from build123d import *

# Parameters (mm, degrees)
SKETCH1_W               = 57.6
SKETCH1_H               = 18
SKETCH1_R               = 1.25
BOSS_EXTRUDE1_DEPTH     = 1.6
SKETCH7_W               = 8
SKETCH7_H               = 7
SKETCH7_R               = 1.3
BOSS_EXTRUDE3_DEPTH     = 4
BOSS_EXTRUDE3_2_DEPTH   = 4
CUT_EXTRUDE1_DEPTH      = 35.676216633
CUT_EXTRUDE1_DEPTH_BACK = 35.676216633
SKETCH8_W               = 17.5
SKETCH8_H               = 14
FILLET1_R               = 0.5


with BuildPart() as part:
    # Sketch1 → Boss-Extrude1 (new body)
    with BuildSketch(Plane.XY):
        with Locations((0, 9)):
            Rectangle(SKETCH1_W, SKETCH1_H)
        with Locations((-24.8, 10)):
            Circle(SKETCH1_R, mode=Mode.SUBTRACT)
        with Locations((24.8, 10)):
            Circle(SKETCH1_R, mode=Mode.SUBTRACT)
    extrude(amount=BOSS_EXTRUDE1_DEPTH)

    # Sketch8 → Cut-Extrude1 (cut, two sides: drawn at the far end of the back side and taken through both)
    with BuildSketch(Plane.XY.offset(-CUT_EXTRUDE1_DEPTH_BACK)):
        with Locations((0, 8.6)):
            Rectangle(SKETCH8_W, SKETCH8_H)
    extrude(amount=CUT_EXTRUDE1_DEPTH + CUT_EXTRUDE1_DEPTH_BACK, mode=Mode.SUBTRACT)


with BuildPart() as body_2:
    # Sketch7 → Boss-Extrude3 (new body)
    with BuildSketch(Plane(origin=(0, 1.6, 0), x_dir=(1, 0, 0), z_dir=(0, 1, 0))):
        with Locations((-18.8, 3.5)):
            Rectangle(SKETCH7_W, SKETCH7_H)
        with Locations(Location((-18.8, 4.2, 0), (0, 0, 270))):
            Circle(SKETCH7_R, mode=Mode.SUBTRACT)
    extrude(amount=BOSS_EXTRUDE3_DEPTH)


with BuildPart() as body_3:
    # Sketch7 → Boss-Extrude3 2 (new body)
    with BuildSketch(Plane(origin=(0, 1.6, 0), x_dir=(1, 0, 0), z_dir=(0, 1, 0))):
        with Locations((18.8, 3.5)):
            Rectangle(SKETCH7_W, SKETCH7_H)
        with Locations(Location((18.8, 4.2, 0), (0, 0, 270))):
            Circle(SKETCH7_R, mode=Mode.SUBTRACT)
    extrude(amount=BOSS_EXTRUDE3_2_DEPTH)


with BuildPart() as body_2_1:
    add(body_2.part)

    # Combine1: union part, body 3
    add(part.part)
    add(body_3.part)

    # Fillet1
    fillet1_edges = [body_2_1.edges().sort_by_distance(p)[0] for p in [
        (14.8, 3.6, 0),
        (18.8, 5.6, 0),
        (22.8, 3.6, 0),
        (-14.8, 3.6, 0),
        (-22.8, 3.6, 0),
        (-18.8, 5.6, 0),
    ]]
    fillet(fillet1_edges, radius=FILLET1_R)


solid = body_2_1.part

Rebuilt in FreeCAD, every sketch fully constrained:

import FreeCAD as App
import Part
import Sketcher
Q = App.Units.Quantity


def edges_at(feature, points):
    """Names of the edges that pass closest to the given points."""
    edges = feature.Shape.Edges
    near = lambda p: min(range(len(edges)), key=lambda i: edges[i].distToShape(Part.Vertex(*p))[0])
    return sorted({f"Edge{near(p) + 1}" for p in points})

doc = App.newDocument("Part")
body = doc.addObject("PartDesign::Body", "Body")

sketch1 = doc.addObject("Sketcher::SketchObject", "Sketch")
body.addObject(sketch1)
sketch1.AttachmentSupport = (doc.XY_Plane, [""])
sketch1.MapMode = "FlatFace"
sketch1.addGeometry([
    Part.LineSegment(App.Vector(-28.8, 18, 0), App.Vector(-28.8, 0, 0)),
    Part.LineSegment(App.Vector(-28.8, 0, 0), App.Vector(28.8, 0, 0)),
    Part.LineSegment(App.Vector(28.8, 0, 0), App.Vector(28.8, 18, 0)),
    Part.LineSegment(App.Vector(28.8, 18, 0), App.Vector(-28.8, 18, 0)),
    Part.Circle(App.Vector(-24.8, 10, 0), App.Vector(0, 0, 1), 1.2),
    Part.Circle(App.Vector(24.8, 10, 0), App.Vector(0, 0, 1), 1.2),
], False)
sketch1.addConstraint([
    Sketcher.Constraint("Coincident", 0, 2, 1, 1),
    Sketcher.Constraint("Coincident", 1, 2, 2, 1),
    Sketcher.Constraint("Coincident", 2, 2, 3, 1),
    Sketcher.Constraint("Coincident", 3, 2, 0, 1),
    Sketcher.Constraint("Vertical", 0),
    Sketcher.Constraint("Horizontal", 1),
    Sketcher.Constraint("Vertical", 2),
    Sketcher.Constraint("Horizontal", 3),
    Sketcher.Constraint("Equal", 4, 5),
    Sketcher.Constraint("Symmetric", 0, 2, 1, 2, -1, 1),
    Sketcher.Constraint("Symmetric", 4, 3, 5, 3, -2),
    Sketcher.Constraint("Diameter", 4, Q("2.5 mm")),
    Sketcher.Constraint("DistanceY", 0, 2, 0, 1, Q("18 mm")),
    Sketcher.Constraint("DistanceX", 1, 1, 1, 2, Q("57.6 mm")),
    Sketcher.Constraint("DistanceY", -1, 1, 4, 3, Q("10 mm")),
    Sketcher.Constraint("DistanceX", 0, 2, 4, 3, Q("4 mm")),
])
pad1 = doc.addObject("PartDesign::Pad", "Pad")
body.addObject(pad1)
pad1.Profile = sketch1
pad1.Length = 1.6

sketch2 = doc.addObject("Sketcher::SketchObject", "Sketch001")
body.addObject(sketch2)
sketch2.AttachmentSupport = (doc.XY_Plane, [""])
sketch2.MapMode = "FlatFace"
sketch2.addGeometry([
    Part.LineSegment(App.Vector(-9, 16, 0), App.Vector(-9, 2, 0)),
    Part.LineSegment(App.Vector(-9, 2, 0), App.Vector(9, 2, 0)),
    Part.LineSegment(App.Vector(9, 2, 0), App.Vector(9, 16, 0)),
    Part.LineSegment(App.Vector(9, 16, 0), App.Vector(-9, 16, 0)),
], False)
sketch2.addConstraint([
    Sketcher.Constraint("Coincident", 0, 2, 1, 1),
    Sketcher.Constraint("Coincident", 1, 2, 2, 1),
    Sketcher.Constraint("Coincident", 2, 2, 3, 1),
    Sketcher.Constraint("Coincident", 3, 2, 0, 1),
    Sketcher.Constraint("Vertical", 0),
    Sketcher.Constraint("Horizontal", 1),
    Sketcher.Constraint("Vertical", 2),
    Sketcher.Constraint("Horizontal", 3),
    Sketcher.Constraint("DistanceY", 0, 2, 0, 1, Q("14 mm")),
    Sketcher.Constraint("DistanceX", 1, 1, 1, 2, Q("17.5 mm")),
    Sketcher.Constraint("DistanceY", -1, 1, 0, 2, Q("1.6 mm")),
    Sketcher.Constraint("DistanceX", 0, 2, -1, 1, Q("8.75 mm")),
])
pocket1 = doc.addObject("PartDesign::Pocket", "Pocket")
body.addObject(pocket1)
pocket1.Profile = sketch2
pocket1.Type = "ThroughAll"
pocket1.Midplane = True
body2 = doc.addObject("PartDesign::Body", "Body001")

sketch3 = doc.addObject("Sketcher::SketchObject", "Sketch002")
body2.addObject(sketch3)
sketch3.AttachmentSupport = (doc.getObject("XZ_Plane001"), [""])
sketch3.MapMode = "FlatFace"
sketch3.AttachmentOffset = App.Placement(App.Vector(0, 0, -1.6), App.Rotation())
sketch3.addGeometry([
    Part.LineSegment(App.Vector(-22.8, -7, 0), App.Vector(-22.8, 0, 0)),
    Part.LineSegment(App.Vector(-22.8, 0, 0), App.Vector(-14.8, 0, 0)),
    Part.LineSegment(App.Vector(-14.8, 0, 0), App.Vector(-14.8, -7, 0)),
    Part.LineSegment(App.Vector(-14.8, -7, 0), App.Vector(-22.8, -7, 0)),
    Part.Circle(App.Vector(-18.8, -4.2, 0), App.Vector(0, 0, 1), 1.3),
], False)
sketch3.addConstraint([
    Sketcher.Constraint("Coincident", 0, 2, 1, 1),
    Sketcher.Constraint("Coincident", 1, 2, 2, 1),
    Sketcher.Constraint("Coincident", 2, 2, 3, 1),
    Sketcher.Constraint("Coincident", 3, 2, 0, 1),
    Sketcher.Constraint("Vertical", 0),
    Sketcher.Constraint("Horizontal", 1),
    Sketcher.Constraint("Vertical", 2),
    Sketcher.Constraint("Horizontal", 3),
    Sketcher.Constraint("PointOnObject", 0, 2, -1),
    Sketcher.Constraint("Diameter", 4, Q("2.6 mm")),
    Sketcher.Constraint("DistanceX", 1, 1, 1, 2, Q("8 mm")),
    Sketcher.Constraint("DistanceY", 0, 1, 0, 2, Q("7 mm")),
    Sketcher.Constraint("DistanceX", 0, 2, 4, 3, Q("4 mm")),
    Sketcher.Constraint("DistanceX", 4, 3, -1, 1, Q("18.8 mm")),
    Sketcher.Constraint("DistanceY", 4, 3, -1, 1, Q("4.2 mm")),
])
pad2 = doc.addObject("PartDesign::Pad", "Pad001")
body2.addObject(pad2)
pad2.Profile = sketch3
pad2.Length = 4
pad2.Reversed = True
body3 = doc.addObject("PartDesign::Body", "Body002")

sketch4 = doc.addObject("Sketcher::SketchObject", "Sketch003")
body3.addObject(sketch4)
sketch4.AttachmentSupport = (doc.getObject("XZ_Plane002"), [""])
sketch4.MapMode = "FlatFace"
sketch4.AttachmentOffset = App.Placement(App.Vector(0, 0, -1.6), App.Rotation())
sketch4.addGeometry([
    Part.LineSegment(App.Vector(14.8, -7, 0), App.Vector(14.8, 0, 0)),
    Part.LineSegment(App.Vector(14.8, 0, 0), App.Vector(22.8, 0, 0)),
    Part.LineSegment(App.Vector(22.8, 0, 0), App.Vector(22.8, -7, 0)),
    Part.LineSegment(App.Vector(22.8, -7, 0), App.Vector(14.8, -7, 0)),
    Part.Circle(App.Vector(18.8, -4.2, 0), App.Vector(0, 0, 1), 1.3),
], False)
sketch4.addConstraint([
    Sketcher.Constraint("Coincident", 0, 2, 1, 1),
    Sketcher.Constraint("Coincident", 1, 2, 2, 1),
    Sketcher.Constraint("Coincident", 2, 2, 3, 1),
    Sketcher.Constraint("Coincident", 3, 2, 0, 1),
    Sketcher.Constraint("Vertical", 0),
    Sketcher.Constraint("Horizontal", 1),
    Sketcher.Constraint("Vertical", 2),
    Sketcher.Constraint("Horizontal", 3),
    Sketcher.Constraint("PointOnObject", 0, 2, -1),
    Sketcher.Constraint("Diameter", 4, Q("2.6 mm")),
    Sketcher.Constraint("DistanceX", 1, 1, 1, 2, Q("8 mm")),
    Sketcher.Constraint("DistanceY", 0, 1, 0, 2, Q("7 mm")),
    Sketcher.Constraint("DistanceX", 0, 2, 4, 3, Q("4 mm")),
    Sketcher.Constraint("DistanceX", -1, 1, 4, 3, Q("18.8 mm")),
    Sketcher.Constraint("DistanceY", 4, 3, -1, 1, Q("4.2 mm")),
])
pad3 = doc.addObject("PartDesign::Pad", "Pad002")
body3.addObject(pad3)
pad3.Profile = sketch4
pad3.Length = 4
pad3.Reversed = True
doc.recompute()

boolean = doc.addObject("PartDesign::Boolean", "Boolean")
body2.addObject(boolean)
boolean.Type = "Fuse"
boolean.addObjects([body])
doc.recompute()

boolean2 = doc.addObject("PartDesign::Boolean", "Boolean001")
body2.addObject(boolean2)
boolean2.Type = "Fuse"
boolean2.addObjects([body3])
doc.recompute()

fillet = doc.addObject("PartDesign::Fillet", "Fillet")
body2.addObject(fillet)
fillet.Base = (boolean2, edges_at(boolean2, [
    (14.8, 3.6, 0),
    (18.8, 5.6, 0),
    (22.8, 3.6, 0),
    (-14.8, 3.6, 0),
    (-22.8, 3.6, 0),
    (-18.8, 5.6, 0),
]))
fillet.Radius = 0.5

doc.recompute()
